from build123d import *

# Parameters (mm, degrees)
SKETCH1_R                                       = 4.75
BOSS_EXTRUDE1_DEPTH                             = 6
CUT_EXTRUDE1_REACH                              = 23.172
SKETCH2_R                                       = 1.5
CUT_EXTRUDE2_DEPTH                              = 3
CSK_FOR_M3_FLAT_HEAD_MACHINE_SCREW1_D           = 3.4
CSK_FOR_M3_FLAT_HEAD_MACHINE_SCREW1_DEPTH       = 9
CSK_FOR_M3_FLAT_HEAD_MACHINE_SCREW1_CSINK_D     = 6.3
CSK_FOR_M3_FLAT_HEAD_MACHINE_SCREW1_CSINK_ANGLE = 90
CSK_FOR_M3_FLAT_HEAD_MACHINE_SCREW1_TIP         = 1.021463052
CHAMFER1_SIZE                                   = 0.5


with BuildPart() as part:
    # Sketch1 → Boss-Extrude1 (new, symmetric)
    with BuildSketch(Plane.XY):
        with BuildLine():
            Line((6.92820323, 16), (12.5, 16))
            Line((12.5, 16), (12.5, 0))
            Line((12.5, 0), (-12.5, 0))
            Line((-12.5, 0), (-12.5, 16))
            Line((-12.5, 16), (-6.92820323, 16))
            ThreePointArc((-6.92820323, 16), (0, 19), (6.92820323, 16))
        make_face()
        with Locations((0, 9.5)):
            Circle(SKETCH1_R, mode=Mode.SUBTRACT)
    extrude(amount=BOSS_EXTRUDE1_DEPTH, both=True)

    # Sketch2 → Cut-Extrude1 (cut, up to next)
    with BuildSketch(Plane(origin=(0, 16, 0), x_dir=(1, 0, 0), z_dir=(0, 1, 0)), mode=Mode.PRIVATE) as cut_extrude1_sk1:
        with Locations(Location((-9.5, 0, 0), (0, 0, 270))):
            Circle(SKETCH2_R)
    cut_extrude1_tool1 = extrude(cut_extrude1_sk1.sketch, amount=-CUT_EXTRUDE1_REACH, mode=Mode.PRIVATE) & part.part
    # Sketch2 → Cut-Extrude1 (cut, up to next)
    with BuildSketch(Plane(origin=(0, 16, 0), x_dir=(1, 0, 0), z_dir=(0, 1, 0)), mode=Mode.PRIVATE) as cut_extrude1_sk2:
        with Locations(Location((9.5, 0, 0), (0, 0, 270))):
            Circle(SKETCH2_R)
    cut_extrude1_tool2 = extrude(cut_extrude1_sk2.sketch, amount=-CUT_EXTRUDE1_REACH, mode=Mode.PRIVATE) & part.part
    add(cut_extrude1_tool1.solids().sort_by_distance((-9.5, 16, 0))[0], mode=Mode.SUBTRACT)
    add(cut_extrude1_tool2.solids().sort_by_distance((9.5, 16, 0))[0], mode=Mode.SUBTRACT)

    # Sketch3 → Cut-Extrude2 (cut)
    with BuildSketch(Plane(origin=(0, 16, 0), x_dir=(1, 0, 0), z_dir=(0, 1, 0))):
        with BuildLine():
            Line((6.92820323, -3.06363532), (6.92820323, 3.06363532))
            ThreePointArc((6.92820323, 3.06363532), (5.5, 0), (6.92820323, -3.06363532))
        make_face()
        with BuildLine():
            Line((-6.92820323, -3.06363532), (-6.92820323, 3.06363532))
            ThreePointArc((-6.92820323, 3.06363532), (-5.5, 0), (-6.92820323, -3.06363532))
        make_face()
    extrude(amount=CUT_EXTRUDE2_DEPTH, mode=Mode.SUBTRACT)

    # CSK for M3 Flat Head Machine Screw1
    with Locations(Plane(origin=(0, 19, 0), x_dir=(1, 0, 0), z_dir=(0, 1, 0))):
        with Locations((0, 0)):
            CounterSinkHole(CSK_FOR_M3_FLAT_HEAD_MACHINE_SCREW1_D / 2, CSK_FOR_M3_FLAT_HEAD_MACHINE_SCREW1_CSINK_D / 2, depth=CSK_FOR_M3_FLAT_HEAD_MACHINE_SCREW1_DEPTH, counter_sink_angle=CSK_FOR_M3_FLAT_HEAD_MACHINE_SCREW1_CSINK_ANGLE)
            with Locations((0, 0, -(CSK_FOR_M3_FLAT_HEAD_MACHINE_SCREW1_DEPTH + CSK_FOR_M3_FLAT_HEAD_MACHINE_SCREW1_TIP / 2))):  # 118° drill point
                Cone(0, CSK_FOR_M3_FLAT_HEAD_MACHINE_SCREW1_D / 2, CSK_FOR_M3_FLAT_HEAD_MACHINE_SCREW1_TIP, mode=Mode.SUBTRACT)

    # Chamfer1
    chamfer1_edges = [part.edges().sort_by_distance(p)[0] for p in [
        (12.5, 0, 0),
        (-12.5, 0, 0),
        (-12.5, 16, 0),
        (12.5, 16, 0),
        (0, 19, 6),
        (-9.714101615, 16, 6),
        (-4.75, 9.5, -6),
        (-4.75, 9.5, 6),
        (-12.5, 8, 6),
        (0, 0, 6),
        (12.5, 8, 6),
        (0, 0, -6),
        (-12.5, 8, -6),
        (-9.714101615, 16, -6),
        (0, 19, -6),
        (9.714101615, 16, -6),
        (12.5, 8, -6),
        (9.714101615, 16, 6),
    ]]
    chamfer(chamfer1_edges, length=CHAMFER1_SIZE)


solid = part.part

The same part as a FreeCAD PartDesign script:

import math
import FreeCAD as App
import Part
import Sketcher
from FreeCAD import Vector
Q = App.Units.Quantity


def edges_at(feature, points):
    """Names of the edges that pass closest to the given points."""
    edges = feature.Shape.Edges
    near = lambda p: min(range(len(edges)), key=lambda i: edges[i].distToShape(Part.Vertex(*p))[0])
    return sorted({f"Edge{near(p) + 1}" for p in points})

doc = App.newDocument("Part")
body = doc.addObject("PartDesign::Body", "Body")

sketch1 = body.newObject("Sketcher::SketchObject", "Sketch")
sketch1.AttachmentSupport = (doc.getObject("XY_Plane"), [""])
sketch1.MapMode = "FlatFace"
sketch1.addGeometry(Part.LineSegment(Vector(12.5, 16, 0), Vector(6.9, 16, 0)), False)
sketch1.addGeometry(Part.ArcOfCircle(Part.Circle(Vector(0, 9.5, 0), Vector(0, 0, 1), 9.5), math.radians(43), math.radians(137)), False)
sketch1.addGeometry(Part.LineSegment(Vector(-6.9, 16, 0), Vector(-12.5, 16, 0)), False)
sketch1.addGeometry(Part.LineSegment(Vector(-12.5, 16, 0), Vector(-12.5, 0, 0)), False)
sketch1.addGeometry(Part.LineSegment(Vector(-12.5, 0, 0), Vector(12.5, 0, 0)), False)
sketch1.addGeometry(Part.LineSegment(Vector(12.5, 0, 0), Vector(12.5, 16, 0)), False)
sketch1.addGeometry(Part.Circle(Vector(0, 9.5, 0), Vector(0, 0, 1), 4.8), False)
sketch1.addConstraint(Sketcher.Constraint("Coincident", 0, 2, 1, 1))
sketch1.addConstraint(Sketcher.Constraint("Coincident", 1, 2, 2, 1))
sketch1.addConstraint(Sketcher.Constraint("Coincident", 2, 2, 3, 1))
sketch1.addConstraint(Sketcher.Constraint("Coincident", 3, 2, 4, 1))
sketch1.addConstraint(Sketcher.Constraint("Coincident", 4, 2, 5, 1))
sketch1.addConstraint(Sketcher.Constraint("Coincident", 5, 2, 0, 1))
sketch1.addConstraint(Sketcher.Constraint("Horizontal", 0))
sketch1.addConstraint(Sketcher.Constraint("Horizontal", 2))
sketch1.addConstraint(Sketcher.Constraint("Vertical", 3))
sketch1.addConstraint(Sketcher.Constraint("Horizontal", 4))
sketch1.addConstraint(Sketcher.Constraint("Vertical", 5))
sketch1.addConstraint(Sketcher.Constraint("Coincident", 6, 3, 1, 3))
sketch1.addConstraint(Sketcher.Constraint("Symmetric", 3, 2, 4, 2, -1, 1))
sketch1.addConstraint(Sketcher.Constraint("Symmetric", 0, 2, 1, 2, -2))
sketch1.addConstraint(Sketcher.Constraint("Diameter", 6, Q("9.5 mm")))
sketch1.addConstraint(Sketcher.Constraint("Radius", 1, Q("9.5 mm")))
sketch1.addConstraint(Sketcher.Constraint("DistanceX", 4, 1, 4, 2, Q("25 mm")))
sketch1.addConstraint(Sketcher.Constraint("DistanceY", 3, 2, 3, 1, Q("16 mm")))
sketch1.addConstraint(Sketcher.Constraint("DistanceY", -1, 1, 1, 3, Q("9.5 mm")))
pad1 = body.newObject("PartDesign::Pad", "Pad")
pad1.Profile = sketch1
pad1.Length = 12
pad1.Midplane = True

sketch2 = body.newObject("Sketcher::SketchObject", "Sketch001")
sketch2.AttachmentSupport = (doc.getObject("XZ_Plane"), [""])
sketch2.MapMode = "FlatFace"
sketch2.AttachmentOffset = App.Placement(Vector(0, 0, -16), App.Rotation())
sketch2.addGeometry(Part.Circle(Vector(-9.5, 0, 0), Vector(0, 0, 1), 1.5), False)
sketch2.addConstraint(Sketcher.Constraint("PointOnObject", 0, 3, -1))
sketch2.addConstraint(Sketcher.Constraint("Diameter", 0, Q("3 mm")))
sketch2.addConstraint(Sketcher.Constraint("DistanceX", 0, 3, -1, 1, Q("9.5 mm")))
pocket1 = body.newObject("PartDesign::Pocket", "Pocket")
pocket1.Profile = sketch2
pocket1.Type = "UpToFirst"
pocket1.Reversed = True

sketch3 = body.newObject("Sketcher::SketchObject", "Sketch002")
sketch3.AttachmentSupport = (doc.getObject("XZ_Plane"), [""])
sketch3.MapMode = "FlatFace"
sketch3.AttachmentOffset = App.Placement(Vector(0, 0, -16), App.Rotation())
sketch3.addGeometry(Part.Circle(Vector(9.5, 0, 0), Vector(0, 0, 1), 1.5), False)
sketch3.addConstraint(Sketcher.Constraint("PointOnObject", 0, 3, -1))
sketch3.addConstraint(Sketcher.Constraint("Diameter", 0, Q("3 mm")))
sketch3.addConstraint(Sketcher.Constraint("DistanceX", -1, 1, 0, 3, Q("9.5 mm")))
pocket2 = body.newObject("PartDesign::Pocket", "Pocket001")
pocket2.Profile = sketch3
pocket2.Type = "UpToFirst"
pocket2.Reversed = True

sketch4 = body.newObject("Sketcher::SketchObject", "Sketch003")
sketch4.AttachmentSupport = (doc.getObject("XZ_Plane"), [""])
sketch4.MapMode = "FlatFace"
sketch4.AttachmentOffset = App.Placement(Vector(0, 0, -16), App.Rotation())
sketch4.addGeometry(Part.LineSegment(Vector(6.9, 3.1, 0), Vector(6.9, -3.1, 0)), False)
sketch4.addGeometry(Part.ArcOfCircle(Part.Circle(Vector(9.5, 0, 0), Vector(0, 0, 1), 4), math.radians(130), math.radians(230)), False)
sketch4.addGeometry(Part.LineSegment(Vector(-6.9, -3.1, 0), Vector(-6.9, 3.1, 0)), False)
sketch4.addGeometry(Part.ArcOfCircle(Part.Circle(Vector(-9.5, 0, 0), Vector(0, 0, 1), 4), math.radians(-50), math.radians(50)), False)
sketch4.addConstraint(Sketcher.Constraint("Coincident", 0, 1, 1, 1))
sketch4.addConstraint(Sketcher.Constraint("Coincident", 1, 2, 0, 2))
sketch4.addConstraint(Sketcher.Constraint("Coincident", 2, 1, 3, 1))
sketch4.addConstraint(Sketcher.Constraint("Coincident", 3, 2, 2, 2))
sketch4.addConstraint(Sketcher.Constraint("Vertical", 0))
sketch4.addConstraint(Sketcher.Constraint("Vertical", 2))
sketch4.addConstraint(Sketcher.Constraint("Equal", 1, 3))
sketch4.addConstraint(Sketcher.Constraint("Symmetric", 1, 3, 3, 3, -1, 1))
sketch4.addConstraint(Sketcher.Constraint("Symmetric", 1, 2, 2, 1, -2))
sketch4.addConstraint(Sketcher.Constraint("Radius", 1, Q("4 mm")))
sketch4.addConstraint(Sketcher.Constraint("DistanceX", 3, 3, 1, 3, Q("19 mm")))
sketch4.addConstraint(Sketcher.Constraint("DistanceY", 0, 2, 0, 1, Q("6.127271 mm")))
pocket3 = body.newObject("PartDesign::Pocket", "Pocket002")
pocket3.Profile = sketch4
pocket3.Length = 3

sketch5 = body.newObject("Sketcher::SketchObject", "Sketch004")
sketch5.AttachmentSupport = (doc.getObject("XZ_Plane"), [""])
sketch5.MapMode = "FlatFace"
sketch5.AttachmentOffset = App.Placement(Vector(0, 0, -19), App.Rotation())
sketch5.addGeometry(Part.Circle(Vector(0, 0, 0), Vector(0, 0, 1), 1.7), False)
sketch5.addConstraint(Sketcher.Constraint("Coincident", 0, 3, -1, 1))
sketch5.addConstraint(Sketcher.Constraint("Diameter", 0, Q("3.4 mm")))
doc.recompute()
hole = body.newObject("PartDesign::Hole", "Hole")
hole.Profile = sketch5
hole.ThreadType = "None"
hole.Diameter = 3.4
hole.DepthType = "Dimension"
hole.Depth = 9
hole.DrillPoint = "Angled"
hole.DrillPointAngle = 118
hole.HoleCutType = "Countersink"
hole.HoleCutDiameter = 6.3
hole.HoleCutCountersinkAngle = 90
hole.Reversed = True
doc.recompute()

chamfer = body.newObject("PartDesign::Chamfer", "Chamfer")
chamfer.Base = (hole, edges_at(hole, [
    (12.5, 0, 0),
    (-12.5, 0, 0),
    (-12.5, 16, 0),
    (12.5, 16, 0),
    (0, 19, 6),
    (-9.714, 16, 6),
    (-4.75, 9.5, -6),
    (-4.75, 9.5, 6),
    (-12.5, 8, 6),
    (0, 0, 6),
    (12.5, 8, 6),
    (0, 0, -6),
    (-12.5, 8, -6),
    (-9.714, 16, -6),
    (0, 19, -6),
    (9.714, 16, -6),
    (12.5, 8, -6),
    (9.714, 16, 6),
]))
chamfer.Size = 0.5

doc.recompute()
